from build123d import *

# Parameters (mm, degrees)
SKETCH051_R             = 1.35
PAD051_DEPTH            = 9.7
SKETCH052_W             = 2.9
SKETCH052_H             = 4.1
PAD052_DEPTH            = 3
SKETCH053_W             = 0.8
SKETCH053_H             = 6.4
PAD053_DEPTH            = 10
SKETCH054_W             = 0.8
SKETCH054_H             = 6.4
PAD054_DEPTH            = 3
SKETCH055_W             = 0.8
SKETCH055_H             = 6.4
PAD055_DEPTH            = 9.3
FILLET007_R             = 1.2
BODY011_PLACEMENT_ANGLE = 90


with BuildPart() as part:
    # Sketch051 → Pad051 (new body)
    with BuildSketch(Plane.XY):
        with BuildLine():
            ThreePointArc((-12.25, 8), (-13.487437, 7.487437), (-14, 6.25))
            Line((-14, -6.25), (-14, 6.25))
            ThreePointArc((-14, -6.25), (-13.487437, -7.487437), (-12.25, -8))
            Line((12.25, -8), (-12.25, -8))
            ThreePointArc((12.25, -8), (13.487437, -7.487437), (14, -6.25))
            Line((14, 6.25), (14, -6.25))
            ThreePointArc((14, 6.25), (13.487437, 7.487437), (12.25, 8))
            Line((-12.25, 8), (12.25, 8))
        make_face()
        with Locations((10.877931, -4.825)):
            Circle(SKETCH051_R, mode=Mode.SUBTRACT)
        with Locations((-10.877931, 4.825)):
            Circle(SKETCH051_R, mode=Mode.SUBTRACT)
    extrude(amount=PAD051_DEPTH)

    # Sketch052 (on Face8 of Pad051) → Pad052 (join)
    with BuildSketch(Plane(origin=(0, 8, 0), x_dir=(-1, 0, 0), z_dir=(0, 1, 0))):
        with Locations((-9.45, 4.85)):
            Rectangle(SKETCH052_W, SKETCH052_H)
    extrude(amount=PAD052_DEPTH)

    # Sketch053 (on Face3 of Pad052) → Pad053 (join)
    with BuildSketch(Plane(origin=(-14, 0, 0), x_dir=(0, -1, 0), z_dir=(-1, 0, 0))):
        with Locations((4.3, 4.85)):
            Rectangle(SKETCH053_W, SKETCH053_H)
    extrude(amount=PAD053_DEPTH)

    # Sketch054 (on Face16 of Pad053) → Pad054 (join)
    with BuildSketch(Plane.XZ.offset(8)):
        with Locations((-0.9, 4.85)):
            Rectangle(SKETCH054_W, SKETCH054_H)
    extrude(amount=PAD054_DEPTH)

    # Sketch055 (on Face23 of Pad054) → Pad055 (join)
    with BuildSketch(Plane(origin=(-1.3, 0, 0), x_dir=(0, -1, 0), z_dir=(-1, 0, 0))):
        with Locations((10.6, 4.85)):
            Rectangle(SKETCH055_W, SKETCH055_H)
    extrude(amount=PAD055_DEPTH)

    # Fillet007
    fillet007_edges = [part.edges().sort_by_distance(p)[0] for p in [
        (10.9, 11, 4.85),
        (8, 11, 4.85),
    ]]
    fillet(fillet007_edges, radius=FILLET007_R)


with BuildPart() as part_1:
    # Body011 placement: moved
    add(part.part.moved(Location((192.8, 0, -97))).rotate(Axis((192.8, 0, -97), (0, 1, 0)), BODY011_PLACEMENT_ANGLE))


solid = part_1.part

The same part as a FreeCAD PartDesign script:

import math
import FreeCAD as App
import Part
import Sketcher

V = App.Vector


def edges_at(feature, points):
    """Names of the edges that pass closest to the given points."""
    edges = feature.Shape.Edges
    near = lambda p: min(range(len(edges)), key=lambda i: edges[i].distToShape(Part.Vertex(*p))[0])
    return sorted({f"Edge{near(p) + 1}" for p in points})

doc = App.newDocument("Part")
params = doc.addObject("Spreadsheet::Sheet", "Params")
for row, (alias, value) in enumerate([
    ("sketch1_diameter", "2.7 mm"),
    ("sketch1_radius", "1.75 mm"),
    ("sketch1_width", "24.5 mm"),
    ("sketch1_height", "12.5 mm"),
    ("pad1_length", "9.7 mm"),
    ("sketch2_width", "2.9 mm"),
    ("sketch2_height", "4.1 mm"),
    ("pad2_length", "3 mm"),
    ("sketch3_width", "0.8 mm"),
    ("sketch3_height", "6.4 mm"),
    ("pad3_length", "10 mm"),
    ("sketch4_width", "0.8 mm"),
    ("sketch4_height", "6.4 mm"),
    ("pad4_length", "3 mm"),
    ("sketch5_width", "0.8 mm"),
    ("sketch5_height", "6.4 mm"),
    ("pad5_length", "9.3 mm"),
    ("fillet_radius", "1.2 mm"),
], start=1):
    params.set(f"A{row}", alias)
    params.set(f"B{row}", "=" + value)
    params.setAlias(f"B{row}", alias)

body = doc.addObject("PartDesign::Body", "Body")

sketch1 = body.newObject("Sketcher::SketchObject", "Sketch")
sketch1.AttachmentSupport = (doc.getObject("XY_Plane"), [""])
sketch1.MapMode = "FlatFace"
sketch1.addGeometry([
    Part.ArcOfCircle(Part.Circle(V(-12.3, 6.3, 0), V(0, 0, 1), 1.7), math.radians(90), math.radians(180)),
    Part.LineSegment(V(-14, 6.2, 0), V(-14, -6.2, 0)),
    Part.ArcOfCircle(Part.Circle(V(-12.3, -6.3, 0), V(0, 0, 1), 1.7), math.radians(180), math.radians(270)),
    Part.LineSegment(V(-12.2, -8, 0), V(12.2, -8, 0)),
    Part.ArcOfCircle(Part.Circle(V(12.3, -6.3, 0), V(0, 0, 1), 1.7), math.radians(-90), math.radians(0)),
    Part.LineSegment(V(14, -6.2, 0), V(14, 6.2, 0)),
    Part.ArcOfCircle(Part.Circle(V(12.3, 6.3, 0), V(0, 0, 1), 1.7), math.radians(0), math.radians(90)),
    Part.LineSegment(V(12.2, 8, 0), V(-12.2, 8, 0)),
    Part.Circle(V(10.9, -4.8, 0), V(0, 0, 1), 1.4),
    Part.Circle(V(-10.9, 4.8, 0), V(0, 0, 1), 1.4),
], False)
sketch1.addConstraint([
    Sketcher.Constraint("Tangent", 0, 2, 1, 1),
    Sketcher.Constraint("Tangent", 1, 2, 2, 1),
    Sketcher.Constraint("Tangent", 2, 2, 3, 1),
    Sketcher.Constraint("Tangent", 3, 2, 4, 1),
    Sketcher.Constraint("Tangent", 4, 2, 5, 1),
    Sketcher.Constraint("Tangent", 5, 2, 6, 1),
    Sketcher.Constraint("Tangent", 6, 2, 7, 1),
    Sketcher.Constraint("Tangent", 7, 2, 0, 1),
    Sketcher.Constraint("Vertical", 1),
    Sketcher.Constraint("Horizontal", 3),
    Sketcher.Constraint("Vertical", 5),
    Sketcher.Constraint("Horizontal", 7),
    Sketcher.Constraint("Equal", 0, 2),
    Sketcher.Constraint("Equal", 2, 4),
    Sketcher.Constraint("Equal", 4, 6),
    Sketcher.Constraint("Equal", 8, 9),
    Sketcher.Constraint("Symmetric", 0, 3, 4, 3, -1, 1),
    Sketcher.Constraint("Symmetric", 8, 3, 9, 3, -1, 1),
    Sketcher.Constraint("Diameter", 8, 2.7),
    Sketcher.Constraint("Radius", 0, 1.75),
    Sketcher.Constraint("DistanceX", 3, 1, 3, 2, 24.5),
    Sketcher.Constraint("DistanceY", 1, 2, 1, 1, 12.5),
    Sketcher.Constraint("DistanceY", 8, 3, 9, 3, 9.65),
    Sketcher.Constraint("DistanceX", -1, 1, 8, 3, 10.877931),
])
sketch1.setExpression("Constraints[18]", "Params.sketch1_diameter")
sketch1.setExpression("Constraints[19]", "Params.sketch1_radius")
sketch1.setExpression("Constraints[20]", "Params.sketch1_width")
sketch1.setExpression("Constraints[21]", "Params.sketch1_height")
pad1 = body.newObject("PartDesign::Pad", "Pad")
pad1.Profile = sketch1
pad1.setExpression("Length", "Params.pad1_length")

sketch2 = body.newObject("Sketcher::SketchObject", "Sketch001")
sketch2.AttachmentSupport = (doc.getObject("XZ_Plane"), [""])
sketch2.MapMode = "FlatFace"
sketch2.AttachmentOffset = App.Placement(V(0, 0, -8), App.Rotation())
sketch2.addGeometry([
    Part.LineSegment(V(10.9, 6.9, 0), V(10.9, 2.8, 0)),
    Part.LineSegment(V(10.9, 2.8, 0), V(8, 2.8, 0)),
    Part.LineSegment(V(8, 2.8, 0), V(8, 6.9, 0)),
    Part.LineSegment(V(8, 6.9, 0), V(10.9, 6.9, 0)),
], False)
sketch2.addConstraint([
    Sketcher.Constraint("Coincident", 0, 2, 1, 1),
    Sketcher.Constraint("Coincident", 1, 2, 2, 1),
    Sketcher.Constraint("Coincident", 2, 2, 3, 1),
    Sketcher.Constraint("Coincident", 3, 2, 0, 1),
    Sketcher.Constraint("Vertical", 0),
    Sketcher.Constraint("Horizontal", 1),
    Sketcher.Constraint("Vertical", 2),
    Sketcher.Constraint("Horizontal", 3),
    Sketcher.Constraint("DistanceX", 1, 2, 1, 1, 2.9),
    Sketcher.Constraint("DistanceY", 0, 2, 0, 1, 4.1),
    Sketcher.Constraint("DistanceX", -1, 1, 1, 2, 8.0),
    Sketcher.Constraint("DistanceY", -1, 1, 0, 2, 2.8),
])
sketch2.setExpression("Constraints[8]", "Params.sketch2_width")
sketch2.setExpression("Constraints[9]", "Params.sketch2_height")
pad2 = body.newObject("PartDesign::Pad", "Pad001")
pad2.Profile = sketch2
pad2.setExpression("Length", "Params.pad2_length")
pad2.Reversed = True

sketch3 = body.newObject("Sketcher::SketchObject", "Sketch002")
sketch3.AttachmentSupport = (doc.getObject("YZ_Plane"), [""])
sketch3.MapMode = "FlatFace"
sketch3.AttachmentOffset = App.Placement(V(0, 0, -14), App.Rotation())
sketch3.addGeometry([
    Part.LineSegment(V(-3.9, 8.1, 0), V(-3.9, 1.6, 0)),
    Part.LineSegment(V(-3.9, 1.6, 0), V(-4.7, 1.6, 0)),
    Part.LineSegment(V(-4.7, 1.6, 0), V(-4.7, 8.1, 0)),
    Part.LineSegment(V(-4.7, 8.1, 0), V(-3.9, 8.1, 0)),
], False)
sketch3.addConstraint([
    Sketcher.Constraint("Coincident", 0, 2, 1, 1),
    Sketcher.Constraint("Coincident", 1, 2, 2, 1),
    Sketcher.Constraint("Coincident", 2, 2, 3, 1),
    Sketcher.Constraint("Coincident", 3, 2, 0, 1),
    Sketcher.Constraint("Vertical", 0),
    Sketcher.Constraint("Horizontal", 1),
    Sketcher.Constraint("Vertical", 2),
    Sketcher.Constraint("Horizontal", 3),
    Sketcher.Constraint("DistanceX", 1, 2, 1, 1, 0.8),
    Sketcher.Constraint("DistanceY", 0, 2, 0, 1, 6.4),
    Sketcher.Constraint("DistanceX", 0, 2, -1, 1, 3.9),
    Sketcher.Constraint("DistanceY", -1, 1, 0, 2, 1.65),
])
sketch3.setExpression("Constraints[8]", "Params.sketch3_width")
sketch3.setExpression("Constraints[9]", "Params.sketch3_height")
pad3 = body.newObject("PartDesign::Pad", "Pad002")
pad3.Profile = sketch3
pad3.setExpression("Length", "Params.pad3_length")
pad3.Reversed = True

sketch4 = body.newObject("Sketcher::SketchObject", "Sketch003")
sketch4.AttachmentSupport = (doc.getObject("XZ_Plane"), [""])
sketch4.MapMode = "FlatFace"
sketch4.AttachmentOffset = App.Placement(V(0, 0, 8), App.Rotation())
sketch4.addGeometry([
    Part.LineSegment(V(-1.3, 8.1, 0), V(-1.3, 1.6, 0)),
    Part.LineSegment(V(-1.3, 1.6, 0), V(-0.5, 1.6, 0)),
    Part.LineSegment(V(-0.5, 1.6, 0), V(-0.5, 8.1, 0)),
    Part.LineSegment(V(-0.5, 8.1, 0), V(-1.3, 8.1, 0)),
], False)
sketch4.addConstraint([
    Sketcher.Constraint("Coincident", 0, 2, 1, 1),
    Sketcher.Constraint("Coincident", 1, 2, 2, 1),
    Sketcher.Constraint("Coincident", 2, 2, 3, 1),
    Sketcher.Constraint("Coincident", 3, 2, 0, 1),
    Sketcher.Constraint("Vertical", 0),
    Sketcher.Constraint("Horizontal", 1),
    Sketcher.Constraint("Vertical", 2),
    Sketcher.Constraint("Horizontal", 3),
    Sketcher.Constraint("DistanceX", 1, 1, 1, 2, 0.8),
    Sketcher.Constraint("DistanceY", 0, 2, 0, 1, 6.4),
    Sketcher.Constraint("DistanceX", 0, 2, -1, 1, 1.3),
    Sketcher.Constraint("DistanceY", -1, 1, 0, 2, 1.65),
])
sketch4.setExpression("Constraints[8]", "Params.sketch4_width")
sketch4.setExpression("Constraints[9]", "Params.sketch4_height")
pad4 = body.newObject("PartDesign::Pad", "Pad003")
pad4.Profile = sketch4
pad4.setExpression("Length", "Params.pad4_length")

sketch5 = body.newObject("Sketcher::SketchObject", "Sketch004")
sketch5.AttachmentSupport = (doc.getObject("YZ_Plane"), [""])
sketch5.MapMode = "FlatFace"
sketch5.AttachmentOffset = App.Placement(V(0, 0, -1.3), App.Rotation())
sketch5.addGeometry([
    Part.LineSegment(V(-10.2, 8.1, 0), V(-10.2, 1.6, 0)),
    Part.LineSegment(V(-10.2, 1.6, 0), V(-11, 1.6, 0)),
    Part.LineSegment(V(-11, 1.6, 0), V(-11, 8.1, 0)),
    Part.LineSegment(V(-11, 8.1, 0), V(-10.2, 8.1, 0)),
], False)
sketch5.addConstraint([
    Sketcher.Constraint("Coincident", 0, 2, 1, 1),
    Sketcher.Constraint("Coincident", 1, 2, 2, 1),
    Sketcher.Constraint("Coincident", 2, 2, 3, 1),
    Sketcher.Constraint("Coincident", 3, 2, 0, 1),
    Sketcher.Constraint("Vertical", 0),
    Sketcher.Constraint("Horizontal", 1),
    Sketcher.Constraint("Vertical", 2),
    Sketcher.Constraint("Horizontal", 3),
    Sketcher.Constraint("DistanceX", 1, 2, 1, 1, 0.8),
    Sketcher.Constraint("DistanceY", 0, 2, 0, 1, 6.4),
    Sketcher.Constraint("DistanceX", 1, 2, -1, 1, 11.0),
    Sketcher.Constraint("DistanceY", -1, 1, 0, 2, 1.65),
])
sketch5.setExpression("Constraints[8]", "Params.sketch5_width")
sketch5.setExpression("Constraints[9]", "Params.sketch5_height")
pad5 = body.newObject("PartDesign::Pad", "Pad004")
pad5.Profile = sketch5
pad5.setExpression("Length", "Params.pad5_length")
pad5.Reversed = True
doc.recompute()

fillet = body.newObject("PartDesign::Fillet", "Fillet")
fillet.Base = (pad5, edges_at(pad5, [(10.9, 11, 4.85), (8, 11, 4.85)]))
fillet.setExpression("Radius", "Params.fillet_radius")
body2 = doc.addObject("PartDesign::Body", "Body001")
doc.recompute()

body.Placement = App.Placement(V(192.8, 0, -97), App.Rotation(V(0, 1, 0), 90))
boolean = body2.newObject("PartDesign::Boolean", "Boolean")
boolean.Type = "Fuse"
boolean.addObjects([body])

doc.recompute()
